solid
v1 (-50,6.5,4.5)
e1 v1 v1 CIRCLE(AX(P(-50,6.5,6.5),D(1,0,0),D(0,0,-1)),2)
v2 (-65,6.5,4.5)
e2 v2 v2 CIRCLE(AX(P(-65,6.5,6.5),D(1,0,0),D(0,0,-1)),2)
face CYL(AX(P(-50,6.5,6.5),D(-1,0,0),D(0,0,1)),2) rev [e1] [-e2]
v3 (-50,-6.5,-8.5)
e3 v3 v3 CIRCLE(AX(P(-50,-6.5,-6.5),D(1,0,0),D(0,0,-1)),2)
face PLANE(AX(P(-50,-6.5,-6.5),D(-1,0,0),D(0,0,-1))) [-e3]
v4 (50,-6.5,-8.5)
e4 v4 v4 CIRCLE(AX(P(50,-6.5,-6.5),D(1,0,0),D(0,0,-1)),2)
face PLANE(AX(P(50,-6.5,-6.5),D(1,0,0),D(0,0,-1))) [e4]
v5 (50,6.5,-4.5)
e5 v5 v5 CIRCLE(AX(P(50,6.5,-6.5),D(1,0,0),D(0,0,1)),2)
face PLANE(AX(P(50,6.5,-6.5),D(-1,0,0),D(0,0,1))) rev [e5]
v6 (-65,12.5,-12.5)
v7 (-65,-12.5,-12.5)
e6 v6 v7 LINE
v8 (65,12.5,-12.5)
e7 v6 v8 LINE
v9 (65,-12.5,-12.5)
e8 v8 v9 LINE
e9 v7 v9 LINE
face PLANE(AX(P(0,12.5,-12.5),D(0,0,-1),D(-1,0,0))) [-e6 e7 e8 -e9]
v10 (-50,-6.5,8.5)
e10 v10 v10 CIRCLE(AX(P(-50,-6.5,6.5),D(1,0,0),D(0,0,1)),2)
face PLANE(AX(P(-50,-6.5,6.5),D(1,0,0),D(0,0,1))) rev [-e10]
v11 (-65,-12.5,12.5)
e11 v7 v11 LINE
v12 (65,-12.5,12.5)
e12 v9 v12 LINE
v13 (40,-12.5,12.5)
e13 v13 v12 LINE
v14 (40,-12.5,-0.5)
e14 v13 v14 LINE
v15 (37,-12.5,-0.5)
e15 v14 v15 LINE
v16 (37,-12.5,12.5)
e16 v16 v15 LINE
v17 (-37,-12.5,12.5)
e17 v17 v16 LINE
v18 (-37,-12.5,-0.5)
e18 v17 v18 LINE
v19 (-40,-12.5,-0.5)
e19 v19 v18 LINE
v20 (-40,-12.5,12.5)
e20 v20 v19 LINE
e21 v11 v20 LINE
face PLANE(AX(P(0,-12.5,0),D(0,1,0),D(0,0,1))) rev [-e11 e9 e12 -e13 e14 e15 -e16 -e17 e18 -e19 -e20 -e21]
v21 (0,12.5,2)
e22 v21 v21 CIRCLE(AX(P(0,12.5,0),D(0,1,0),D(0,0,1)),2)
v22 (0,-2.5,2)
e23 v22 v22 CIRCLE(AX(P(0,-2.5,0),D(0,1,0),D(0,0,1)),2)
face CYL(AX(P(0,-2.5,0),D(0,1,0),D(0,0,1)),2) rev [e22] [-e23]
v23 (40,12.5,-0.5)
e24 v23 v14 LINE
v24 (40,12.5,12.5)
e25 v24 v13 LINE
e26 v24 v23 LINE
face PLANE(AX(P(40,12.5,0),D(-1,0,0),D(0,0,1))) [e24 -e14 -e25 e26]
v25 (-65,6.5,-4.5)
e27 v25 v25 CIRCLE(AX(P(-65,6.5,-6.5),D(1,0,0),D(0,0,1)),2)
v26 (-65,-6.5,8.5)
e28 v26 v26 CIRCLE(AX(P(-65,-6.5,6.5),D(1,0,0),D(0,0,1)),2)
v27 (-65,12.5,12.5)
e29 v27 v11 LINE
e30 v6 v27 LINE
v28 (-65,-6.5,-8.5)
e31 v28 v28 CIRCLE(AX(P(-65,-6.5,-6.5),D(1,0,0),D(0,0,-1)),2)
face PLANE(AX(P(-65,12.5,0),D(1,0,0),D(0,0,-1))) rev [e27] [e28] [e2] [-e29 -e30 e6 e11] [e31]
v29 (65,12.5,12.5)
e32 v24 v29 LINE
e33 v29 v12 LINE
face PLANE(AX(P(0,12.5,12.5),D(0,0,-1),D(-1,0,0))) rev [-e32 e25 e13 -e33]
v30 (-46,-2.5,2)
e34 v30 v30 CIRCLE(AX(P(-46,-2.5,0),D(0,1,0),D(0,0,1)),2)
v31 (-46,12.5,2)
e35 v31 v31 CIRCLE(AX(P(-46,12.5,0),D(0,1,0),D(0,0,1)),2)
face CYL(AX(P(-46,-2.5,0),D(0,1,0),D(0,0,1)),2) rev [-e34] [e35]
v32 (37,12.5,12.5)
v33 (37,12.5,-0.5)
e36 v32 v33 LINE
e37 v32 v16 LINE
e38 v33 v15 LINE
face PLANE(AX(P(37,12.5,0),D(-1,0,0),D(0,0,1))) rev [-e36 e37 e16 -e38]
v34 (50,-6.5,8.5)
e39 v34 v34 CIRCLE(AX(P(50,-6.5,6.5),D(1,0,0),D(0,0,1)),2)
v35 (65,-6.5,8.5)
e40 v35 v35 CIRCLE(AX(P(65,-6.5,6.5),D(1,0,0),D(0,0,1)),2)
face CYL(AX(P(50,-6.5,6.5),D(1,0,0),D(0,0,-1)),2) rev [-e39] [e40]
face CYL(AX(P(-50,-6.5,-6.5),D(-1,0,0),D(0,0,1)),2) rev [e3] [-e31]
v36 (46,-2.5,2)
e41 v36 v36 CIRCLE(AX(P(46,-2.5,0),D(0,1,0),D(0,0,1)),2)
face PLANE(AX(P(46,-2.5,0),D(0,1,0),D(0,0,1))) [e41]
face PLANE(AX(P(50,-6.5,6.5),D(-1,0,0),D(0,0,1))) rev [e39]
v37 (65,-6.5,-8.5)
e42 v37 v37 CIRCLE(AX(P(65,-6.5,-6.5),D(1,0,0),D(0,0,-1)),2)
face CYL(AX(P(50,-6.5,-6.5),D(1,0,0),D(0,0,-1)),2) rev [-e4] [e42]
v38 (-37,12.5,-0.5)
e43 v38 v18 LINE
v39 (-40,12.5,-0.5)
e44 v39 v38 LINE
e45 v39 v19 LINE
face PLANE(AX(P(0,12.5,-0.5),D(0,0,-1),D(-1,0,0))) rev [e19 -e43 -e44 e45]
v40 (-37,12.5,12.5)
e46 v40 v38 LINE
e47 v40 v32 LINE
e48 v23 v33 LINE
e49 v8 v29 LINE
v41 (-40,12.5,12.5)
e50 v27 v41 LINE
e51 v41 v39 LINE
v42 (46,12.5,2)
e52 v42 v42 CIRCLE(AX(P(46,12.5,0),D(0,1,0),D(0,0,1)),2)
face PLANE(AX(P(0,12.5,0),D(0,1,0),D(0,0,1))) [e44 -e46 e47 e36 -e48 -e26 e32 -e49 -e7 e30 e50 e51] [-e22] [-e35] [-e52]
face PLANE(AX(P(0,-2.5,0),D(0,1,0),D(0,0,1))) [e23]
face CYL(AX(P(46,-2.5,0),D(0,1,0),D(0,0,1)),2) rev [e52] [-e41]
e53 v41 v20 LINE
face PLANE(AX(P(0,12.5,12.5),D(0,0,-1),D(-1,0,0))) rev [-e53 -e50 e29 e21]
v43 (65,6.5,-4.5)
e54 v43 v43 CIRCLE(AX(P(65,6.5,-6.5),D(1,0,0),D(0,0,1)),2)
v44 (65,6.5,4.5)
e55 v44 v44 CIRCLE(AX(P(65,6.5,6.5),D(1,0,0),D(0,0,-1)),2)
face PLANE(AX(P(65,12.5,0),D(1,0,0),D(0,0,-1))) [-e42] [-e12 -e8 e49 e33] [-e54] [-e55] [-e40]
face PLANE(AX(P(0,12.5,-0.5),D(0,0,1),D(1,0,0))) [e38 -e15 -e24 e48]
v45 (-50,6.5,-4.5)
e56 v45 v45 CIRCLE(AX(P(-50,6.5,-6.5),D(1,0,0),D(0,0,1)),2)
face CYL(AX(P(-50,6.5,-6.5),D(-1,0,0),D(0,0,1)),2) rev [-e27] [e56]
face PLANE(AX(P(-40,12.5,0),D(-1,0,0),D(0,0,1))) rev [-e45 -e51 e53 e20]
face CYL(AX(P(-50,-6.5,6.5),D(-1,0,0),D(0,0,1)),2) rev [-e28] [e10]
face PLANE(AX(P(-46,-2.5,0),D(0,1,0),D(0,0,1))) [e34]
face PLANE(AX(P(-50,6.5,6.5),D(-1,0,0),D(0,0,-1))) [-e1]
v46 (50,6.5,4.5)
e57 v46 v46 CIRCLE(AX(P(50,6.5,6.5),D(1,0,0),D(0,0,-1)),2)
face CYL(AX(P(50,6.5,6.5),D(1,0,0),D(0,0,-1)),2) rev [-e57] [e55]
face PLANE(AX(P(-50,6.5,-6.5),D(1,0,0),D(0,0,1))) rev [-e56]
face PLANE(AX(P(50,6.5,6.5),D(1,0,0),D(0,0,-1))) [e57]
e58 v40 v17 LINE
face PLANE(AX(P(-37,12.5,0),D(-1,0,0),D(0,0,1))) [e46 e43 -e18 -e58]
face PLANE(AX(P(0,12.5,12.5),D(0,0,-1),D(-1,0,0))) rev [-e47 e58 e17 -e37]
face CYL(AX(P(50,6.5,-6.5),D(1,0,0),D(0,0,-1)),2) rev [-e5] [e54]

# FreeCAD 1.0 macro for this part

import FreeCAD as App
import Part
import Sketcher


def add_polygon(sketch, points):
    """Adds a closed chain of lines whose ends are joined by coincident constraints."""
    first, n = sketch.GeometryCount, len(points)
    for a, b in zip(points, points[1:] + points[:1]):
        sketch.addGeometry(Part.LineSegment(App.Vector(*a, 0), App.Vector(*b, 0)), False)
    for i in range(n):
        sketch.addConstraint(Sketcher.Constraint("Coincident", first + i, 2, first + (i + 1) % n, 1))

doc = App.newDocument("Part")
body = doc.addObject("PartDesign::Body", "Body")

# Sketch on XZ plane
sketch1 = body.newObject("Sketcher::SketchObject", "Sketch")
sketch1.AttachmentSupport = (doc.getObject("XZ_Plane"), [""])
sketch1.MapMode = "FlatFace"
add_polygon(sketch1, [(65, -12.5), (-65, -12.5), (-65, 12.5), (-40, 12.5), (-40, -0.5), (-37, -0.5), (-37, 12.5), (37, 12.5), (37, -0.5), (40, -0.5), (40, 12.5), (65, 12.5)])  # lines 0-11
sketch1.addConstraint(Sketcher.Constraint("Horizontal", 0))
sketch1.addConstraint(Sketcher.Constraint("Vertical", 1))
sketch1.addConstraint(Sketcher.Constraint("Horizontal", 2))
sketch1.addConstraint(Sketcher.Constraint("Vertical", 3))
sketch1.addConstraint(Sketcher.Constraint("Horizontal", 4))
sketch1.addConstraint(Sketcher.Constraint("Vertical", 5))
sketch1.addConstraint(Sketcher.Constraint("Horizontal", 6))
sketch1.addConstraint(Sketcher.Constraint("Vertical", 7))
sketch1.addConstraint(Sketcher.Constraint("Horizontal", 8))
sketch1.addConstraint(Sketcher.Constraint("Vertical", 9))
sketch1.addConstraint(Sketcher.Constraint("Horizontal", 10))
sketch1.addConstraint(Sketcher.Constraint("Vertical", 11))
sketch1.addConstraint(Sketcher.Constraint("Symmetric", 0, 2, 10, 2, -1, 1))
sketch1.addConstraint(Sketcher.Constraint("Symmetric", 4, 2, 7, 2, -2))
sketch1.addConstraint(Sketcher.Constraint("Symmetric", 2, 2, 9, 2, -2))
sketch1.addConstraint(Sketcher.Constraint("Horizontal", 2, 2, 5, 2))
sketch1.addConstraint(Sketcher.Constraint("Equal", 10, 1))
sketch1.addConstraint(Sketcher.Constraint("DistanceX", 0, 2, 0, 1, 130.0))
sketch1.addConstraint(Sketcher.Constraint("DistanceX", 2, 1, 2, 2, 25.0))
sketch1.addConstraint(Sketcher.Constraint("DistanceX", 4, 1, 4, 2, 3.0))
sketch1.addConstraint(Sketcher.Constraint("DistanceY", 3, 2, 3, 1, 13.0))
pad1 = body.newObject("PartDesign::Pad", "Pad")
pad1.Profile = sketch1
pad1.Length = 25
pad1.Midplane = True

# Sketch on YZ plane
sketch2 = body.newObject("Sketcher::SketchObject", "Sketch001")
sketch2.AttachmentSupport = (doc.getObject("YZ_Plane"), [""])
sketch2.MapMode = "FlatFace"
sketch2.AttachmentOffset = App.Placement(App.Vector(0, 0, 65), App.Rotation())
sketch2.addGeometry(Part.Circle(App.Vector(6.5, 6.5, 0), App.Vector(0, 0, 1), 2), False)
sketch2.addGeometry(Part.Circle(App.Vector(6.5, -6.5, 0), App.Vector(0, 0, 1), 2), False)
sketch2.addGeometry(Part.Circle(App.Vector(-6.5, -6.5, 0), App.Vector(0, 0, 1), 2), False)
sketch2.addGeometry(Part.Circle(App.Vector(-6.5, 6.5, 0), App.Vector(0, 0, 1), 2), False)
sketch2.addConstraint(Sketcher.Constraint("Equal", 0, 1))
sketch2.addConstraint(Sketcher.Constraint("Equal", 1, 2))
sketch2.addConstraint(Sketcher.Constraint("Equal", 2, 3))
sketch2.addConstraint(Sketcher.Constraint("Symmetric", 0, 3, 2, 3, -1, 1))
sketch2.addConstraint(Sketcher.Constraint("Symmetric", 1, 3, 3, 3, -1, 1))
sketch2.addConstraint(Sketcher.Constraint("Symmetric", 1, 3, 2, 3, -2))
sketch2.addConstraint(Sketcher.Constraint("Diameter", 0, 4.0))
sketch2.addConstraint(Sketcher.Constraint("DistanceY", 1, 3, 0, 3, 13.0))
sketch2.addConstraint(Sketcher.Constraint("DistanceX", 2, 3, 1, 3, 13.0))
pocket1 = body.newObject("PartDesign::Pocket", "Pocket")
pocket1.Profile = sketch2
pocket1.Length = 15

# Sketch on XZ plane
sketch3 = body.newObject("Sketcher::SketchObject", "Sketch002")
sketch3.AttachmentSupport = (doc.getObject("XZ_Plane"), [""])
sketch3.MapMode = "FlatFace"
sketch3.AttachmentOffset = App.Placement(App.Vector(0, 0, -12.5), App.Rotation())
sketch3.addGeometry(Part.Circle(App.Vector(46, 0, 0), App.Vector(0, 0, 1), 2), False)
sketch3.addGeometry(Part.Circle(App.Vector(0, 0, 0), App.Vector(0, 0, 1), 2), False)
sketch3.addGeometry(Part.Circle(App.Vector(-46, 0, 0), App.Vector(0, 0, 1), 2), False)
sketch3.addConstraint(Sketcher.Constraint("Coincident", 1, 3, -1, 1))
sketch3.addConstraint(Sketcher.Constraint("Equal", 0, 1))
sketch3.addConstraint(Sketcher.Constraint("Equal", 1, 2))
sketch3.addConstraint(Sketcher.Constraint("Symmetric", 0, 3, 2, 3, -1, 1))
sketch3.addConstraint(Sketcher.Constraint("PointOnObject", 0, 3, -1))
sketch3.addConstraint(Sketcher.Constraint("Diameter", 0, 4.0))
sketch3.addConstraint(Sketcher.Constraint("DistanceX", -1, 1, 0, 3, 46.0))
pocket2 = body.newObject("PartDesign::Pocket", "Pocket001")
pocket2.Profile = sketch3
pocket2.Length = 15
pocket2.Reversed = True
doc.recompute()

mirrored = body.newObject("PartDesign::Mirrored", "Mirrored")
mirrored.Originals = [pocket1]
mirrored.MirrorPlane = (doc.getObject("YZ_Plane"), [""])
body.Tip = mirrored

doc.recompute()
